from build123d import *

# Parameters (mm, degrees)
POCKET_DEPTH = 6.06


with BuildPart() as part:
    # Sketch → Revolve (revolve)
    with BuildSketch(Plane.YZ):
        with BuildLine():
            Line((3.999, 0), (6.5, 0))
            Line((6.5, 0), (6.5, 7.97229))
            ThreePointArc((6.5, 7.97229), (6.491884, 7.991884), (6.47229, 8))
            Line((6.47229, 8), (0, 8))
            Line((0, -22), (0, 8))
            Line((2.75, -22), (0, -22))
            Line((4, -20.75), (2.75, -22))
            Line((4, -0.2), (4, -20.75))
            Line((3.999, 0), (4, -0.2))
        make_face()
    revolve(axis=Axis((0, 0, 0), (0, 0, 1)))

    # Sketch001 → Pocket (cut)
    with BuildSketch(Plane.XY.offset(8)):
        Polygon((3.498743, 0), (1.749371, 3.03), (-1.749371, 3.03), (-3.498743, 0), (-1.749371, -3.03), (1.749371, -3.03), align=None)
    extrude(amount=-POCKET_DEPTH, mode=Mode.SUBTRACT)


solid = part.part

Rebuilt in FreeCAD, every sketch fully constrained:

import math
import FreeCAD as App
import Part
import Sketcher

V = App.Vector
Q = App.Units.Quantity


def add_polygon(sketch, points):
    """Adds a closed chain of lines whose ends are joined by coincident constraints."""
    first, n = sketch.GeometryCount, len(points)
    for a, b in zip(points, points[1:] + points[:1]):
        sketch.addGeometry(Part.LineSegment(App.Vector(*a, 0), App.Vector(*b, 0)), False)
    for i in range(n):
        sketch.addConstraint(Sketcher.Constraint("Coincident", first + i, 2, first + (i + 1) % n, 1))

doc = App.newDocument("Part")
body = doc.addObject("PartDesign::Body", "Body")

sketch1 = body.newObject("Sketcher::SketchObject", "Sketch")
sketch1.AttachmentSupport = (doc.getObject("YZ_Plane"), [""])
sketch1.MapMode = "FlatFace"
sketch1.addGeometry(Part.LineSegment(V(3.999, 0, 0), V(6.5, 0, 0)), False)
sketch1.addGeometry(Part.LineSegment(V(6.5, 0, 0), V(6.5, 7.972, 0)), False)
sketch1.addGeometry(Part.ArcOfCircle(Part.Circle(V(6.472, 7.972, 0), V(0, 0, 1), 0.028), math.radians(0), math.radians(90)), False)
sketch1.addGeometry(Part.LineSegment(V(6.472, 8, 0), V(0, 8, 0)), False)
sketch1.addGeometry(Part.LineSegment(V(0, 8, 0), V(0, -22, 0)), False)
sketch1.addGeometry(Part.LineSegment(V(0, -22, 0), V(2.75, -22, 0)), False)
sketch1.addGeometry(Part.LineSegment(V(2.75, -22, 0), V(4, -20.75, 0)), False)
sketch1.addGeometry(Part.LineSegment(V(4, -20.75, 0), V(4, -0.2, 0)), False)
sketch1.addGeometry(Part.LineSegment(V(4, -0.2, 0), V(3.999, 0, 0)), False)
sketch1.addConstraint(Sketcher.Constraint("Coincident", 0, 2, 1, 1))
sketch1.addConstraint(Sketcher.Constraint("Coincident", 1, 2, 2, 1))
sketch1.addConstraint(Sketcher.Constraint("Coincident", 2, 2, 3, 1))
sketch1.addConstraint(Sketcher.Constraint("Coincident", 3, 2, 4, 1))
sketch1.addConstraint(Sketcher.Constraint("Coincident", 4, 2, 5, 1))
sketch1.addConstraint(Sketcher.Constraint("Coincident", 5, 2, 6, 1))
sketch1.addConstraint(Sketcher.Constraint("Coincident", 6, 2, 7, 1))
sketch1.addConstraint(Sketcher.Constraint("Coincident", 7, 2, 8, 1))
sketch1.addConstraint(Sketcher.Constraint("Coincident", 8, 2, 0, 1))
sketch1.addConstraint(Sketcher.Constraint("Horizontal", 0))
sketch1.addConstraint(Sketcher.Constraint("Vertical", 1))
sketch1.addConstraint(Sketcher.Constraint("Horizontal", 3))
sketch1.addConstraint(Sketcher.Constraint("Vertical", 4))
sketch1.addConstraint(Sketcher.Constraint("Horizontal", 5))
sketch1.addConstraint(Sketcher.Constraint("Vertical", 7))
sketch1.addConstraint(Sketcher.Constraint("PointOnObject", 0, 2, -1))
sketch1.addConstraint(Sketcher.Constraint("PointOnObject", 3, 2, -2))
sketch1.addConstraint(Sketcher.Constraint("Horizontal", 2, 3, 1, 2))
sketch1.addConstraint(Sketcher.Constraint("DistanceY", 4, 2, 4, 1, 30.0))
sketch1.addConstraint(Sketcher.Constraint("Angle", 6, Q("45 deg")))
sketch1.addConstraint(Sketcher.Constraint("DistanceY", -1, 1, 2, 2, 8.0))
sketch1.addConstraint(Sketcher.Constraint("DistanceX", -1, 1, 6, 2, 4.0))
sketch1.addConstraint(Sketcher.Constraint("DistanceX", 5, 1, 5, 2, 2.75))
sketch1.addConstraint(Sketcher.Constraint("DistanceY", 7, 1, 7, 2, 20.55))
sketch1.addConstraint(Sketcher.Constraint("DistanceX", -1, 1, 0, 2, 6.5))
sketch1.addConstraint(Sketcher.Constraint("DistanceX", 0, 1, 0, 2, 2.501))
sketch1.addConstraint(Sketcher.Constraint("Radius", 2, 0.02771))
sketch1.addConstraint(Sketcher.Constraint("DistanceX", 3, 2, 3, 1, 6.47229))
revolution = body.newObject("PartDesign::Revolution", "Revolution")
revolution.Profile = sketch1
revolution.ReferenceAxis = (sketch1, ["V_Axis"])
revolution.Angle = 360

sketch2 = body.newObject("Sketcher::SketchObject", "Sketch001")
sketch2.AttachmentSupport = (doc.getObject("XY_Plane"), [""])
sketch2.MapMode = "FlatFace"
sketch2.AttachmentOffset = App.Placement(V(0, 0, 8), App.Rotation())
add_polygon(sketch2, [(3.5, 0), (1.7, 3), (-1.7, 3), (-3.5, 0), (-1.7, -3), (1.7, -3)])
sketch2.addConstraint(Sketcher.Constraint("Horizontal", 1))
sketch2.addConstraint(Sketcher.Constraint("Horizontal", 4))
sketch2.addConstraint(Sketcher.Constraint("Symmetric", 0, 2, 3, 2, -1, 1))
sketch2.addConstraint(Sketcher.Constraint("Symmetric", 2, 2, 5, 2, -1, 1))
sketch2.addConstraint(Sketcher.Constraint("PointOnObject", 2, 2, -1))
sketch2.addConstraint(Sketcher.Constraint("Parallel", 2, 5))
sketch2.addConstraint(Sketcher.Constraint("Vertical", 1, 2, 3, 2))
sketch2.addConstraint(Sketcher.Constraint("Angle", 0, Q("120.00001 deg")))
sketch2.addConstraint(Sketcher.Constraint("DistanceY", -1, 1, 0, 2, 3.03))
sketch2.addConstraint(Sketcher.Constraint("DistanceX", 1, 2, 1, 1, 3.498742))
pocket1 = body.newObject("PartDesign::Pocket", "Pocket")
pocket1.Profile = sketch2
pocket1.Length = 6.06

doc.recompute()
